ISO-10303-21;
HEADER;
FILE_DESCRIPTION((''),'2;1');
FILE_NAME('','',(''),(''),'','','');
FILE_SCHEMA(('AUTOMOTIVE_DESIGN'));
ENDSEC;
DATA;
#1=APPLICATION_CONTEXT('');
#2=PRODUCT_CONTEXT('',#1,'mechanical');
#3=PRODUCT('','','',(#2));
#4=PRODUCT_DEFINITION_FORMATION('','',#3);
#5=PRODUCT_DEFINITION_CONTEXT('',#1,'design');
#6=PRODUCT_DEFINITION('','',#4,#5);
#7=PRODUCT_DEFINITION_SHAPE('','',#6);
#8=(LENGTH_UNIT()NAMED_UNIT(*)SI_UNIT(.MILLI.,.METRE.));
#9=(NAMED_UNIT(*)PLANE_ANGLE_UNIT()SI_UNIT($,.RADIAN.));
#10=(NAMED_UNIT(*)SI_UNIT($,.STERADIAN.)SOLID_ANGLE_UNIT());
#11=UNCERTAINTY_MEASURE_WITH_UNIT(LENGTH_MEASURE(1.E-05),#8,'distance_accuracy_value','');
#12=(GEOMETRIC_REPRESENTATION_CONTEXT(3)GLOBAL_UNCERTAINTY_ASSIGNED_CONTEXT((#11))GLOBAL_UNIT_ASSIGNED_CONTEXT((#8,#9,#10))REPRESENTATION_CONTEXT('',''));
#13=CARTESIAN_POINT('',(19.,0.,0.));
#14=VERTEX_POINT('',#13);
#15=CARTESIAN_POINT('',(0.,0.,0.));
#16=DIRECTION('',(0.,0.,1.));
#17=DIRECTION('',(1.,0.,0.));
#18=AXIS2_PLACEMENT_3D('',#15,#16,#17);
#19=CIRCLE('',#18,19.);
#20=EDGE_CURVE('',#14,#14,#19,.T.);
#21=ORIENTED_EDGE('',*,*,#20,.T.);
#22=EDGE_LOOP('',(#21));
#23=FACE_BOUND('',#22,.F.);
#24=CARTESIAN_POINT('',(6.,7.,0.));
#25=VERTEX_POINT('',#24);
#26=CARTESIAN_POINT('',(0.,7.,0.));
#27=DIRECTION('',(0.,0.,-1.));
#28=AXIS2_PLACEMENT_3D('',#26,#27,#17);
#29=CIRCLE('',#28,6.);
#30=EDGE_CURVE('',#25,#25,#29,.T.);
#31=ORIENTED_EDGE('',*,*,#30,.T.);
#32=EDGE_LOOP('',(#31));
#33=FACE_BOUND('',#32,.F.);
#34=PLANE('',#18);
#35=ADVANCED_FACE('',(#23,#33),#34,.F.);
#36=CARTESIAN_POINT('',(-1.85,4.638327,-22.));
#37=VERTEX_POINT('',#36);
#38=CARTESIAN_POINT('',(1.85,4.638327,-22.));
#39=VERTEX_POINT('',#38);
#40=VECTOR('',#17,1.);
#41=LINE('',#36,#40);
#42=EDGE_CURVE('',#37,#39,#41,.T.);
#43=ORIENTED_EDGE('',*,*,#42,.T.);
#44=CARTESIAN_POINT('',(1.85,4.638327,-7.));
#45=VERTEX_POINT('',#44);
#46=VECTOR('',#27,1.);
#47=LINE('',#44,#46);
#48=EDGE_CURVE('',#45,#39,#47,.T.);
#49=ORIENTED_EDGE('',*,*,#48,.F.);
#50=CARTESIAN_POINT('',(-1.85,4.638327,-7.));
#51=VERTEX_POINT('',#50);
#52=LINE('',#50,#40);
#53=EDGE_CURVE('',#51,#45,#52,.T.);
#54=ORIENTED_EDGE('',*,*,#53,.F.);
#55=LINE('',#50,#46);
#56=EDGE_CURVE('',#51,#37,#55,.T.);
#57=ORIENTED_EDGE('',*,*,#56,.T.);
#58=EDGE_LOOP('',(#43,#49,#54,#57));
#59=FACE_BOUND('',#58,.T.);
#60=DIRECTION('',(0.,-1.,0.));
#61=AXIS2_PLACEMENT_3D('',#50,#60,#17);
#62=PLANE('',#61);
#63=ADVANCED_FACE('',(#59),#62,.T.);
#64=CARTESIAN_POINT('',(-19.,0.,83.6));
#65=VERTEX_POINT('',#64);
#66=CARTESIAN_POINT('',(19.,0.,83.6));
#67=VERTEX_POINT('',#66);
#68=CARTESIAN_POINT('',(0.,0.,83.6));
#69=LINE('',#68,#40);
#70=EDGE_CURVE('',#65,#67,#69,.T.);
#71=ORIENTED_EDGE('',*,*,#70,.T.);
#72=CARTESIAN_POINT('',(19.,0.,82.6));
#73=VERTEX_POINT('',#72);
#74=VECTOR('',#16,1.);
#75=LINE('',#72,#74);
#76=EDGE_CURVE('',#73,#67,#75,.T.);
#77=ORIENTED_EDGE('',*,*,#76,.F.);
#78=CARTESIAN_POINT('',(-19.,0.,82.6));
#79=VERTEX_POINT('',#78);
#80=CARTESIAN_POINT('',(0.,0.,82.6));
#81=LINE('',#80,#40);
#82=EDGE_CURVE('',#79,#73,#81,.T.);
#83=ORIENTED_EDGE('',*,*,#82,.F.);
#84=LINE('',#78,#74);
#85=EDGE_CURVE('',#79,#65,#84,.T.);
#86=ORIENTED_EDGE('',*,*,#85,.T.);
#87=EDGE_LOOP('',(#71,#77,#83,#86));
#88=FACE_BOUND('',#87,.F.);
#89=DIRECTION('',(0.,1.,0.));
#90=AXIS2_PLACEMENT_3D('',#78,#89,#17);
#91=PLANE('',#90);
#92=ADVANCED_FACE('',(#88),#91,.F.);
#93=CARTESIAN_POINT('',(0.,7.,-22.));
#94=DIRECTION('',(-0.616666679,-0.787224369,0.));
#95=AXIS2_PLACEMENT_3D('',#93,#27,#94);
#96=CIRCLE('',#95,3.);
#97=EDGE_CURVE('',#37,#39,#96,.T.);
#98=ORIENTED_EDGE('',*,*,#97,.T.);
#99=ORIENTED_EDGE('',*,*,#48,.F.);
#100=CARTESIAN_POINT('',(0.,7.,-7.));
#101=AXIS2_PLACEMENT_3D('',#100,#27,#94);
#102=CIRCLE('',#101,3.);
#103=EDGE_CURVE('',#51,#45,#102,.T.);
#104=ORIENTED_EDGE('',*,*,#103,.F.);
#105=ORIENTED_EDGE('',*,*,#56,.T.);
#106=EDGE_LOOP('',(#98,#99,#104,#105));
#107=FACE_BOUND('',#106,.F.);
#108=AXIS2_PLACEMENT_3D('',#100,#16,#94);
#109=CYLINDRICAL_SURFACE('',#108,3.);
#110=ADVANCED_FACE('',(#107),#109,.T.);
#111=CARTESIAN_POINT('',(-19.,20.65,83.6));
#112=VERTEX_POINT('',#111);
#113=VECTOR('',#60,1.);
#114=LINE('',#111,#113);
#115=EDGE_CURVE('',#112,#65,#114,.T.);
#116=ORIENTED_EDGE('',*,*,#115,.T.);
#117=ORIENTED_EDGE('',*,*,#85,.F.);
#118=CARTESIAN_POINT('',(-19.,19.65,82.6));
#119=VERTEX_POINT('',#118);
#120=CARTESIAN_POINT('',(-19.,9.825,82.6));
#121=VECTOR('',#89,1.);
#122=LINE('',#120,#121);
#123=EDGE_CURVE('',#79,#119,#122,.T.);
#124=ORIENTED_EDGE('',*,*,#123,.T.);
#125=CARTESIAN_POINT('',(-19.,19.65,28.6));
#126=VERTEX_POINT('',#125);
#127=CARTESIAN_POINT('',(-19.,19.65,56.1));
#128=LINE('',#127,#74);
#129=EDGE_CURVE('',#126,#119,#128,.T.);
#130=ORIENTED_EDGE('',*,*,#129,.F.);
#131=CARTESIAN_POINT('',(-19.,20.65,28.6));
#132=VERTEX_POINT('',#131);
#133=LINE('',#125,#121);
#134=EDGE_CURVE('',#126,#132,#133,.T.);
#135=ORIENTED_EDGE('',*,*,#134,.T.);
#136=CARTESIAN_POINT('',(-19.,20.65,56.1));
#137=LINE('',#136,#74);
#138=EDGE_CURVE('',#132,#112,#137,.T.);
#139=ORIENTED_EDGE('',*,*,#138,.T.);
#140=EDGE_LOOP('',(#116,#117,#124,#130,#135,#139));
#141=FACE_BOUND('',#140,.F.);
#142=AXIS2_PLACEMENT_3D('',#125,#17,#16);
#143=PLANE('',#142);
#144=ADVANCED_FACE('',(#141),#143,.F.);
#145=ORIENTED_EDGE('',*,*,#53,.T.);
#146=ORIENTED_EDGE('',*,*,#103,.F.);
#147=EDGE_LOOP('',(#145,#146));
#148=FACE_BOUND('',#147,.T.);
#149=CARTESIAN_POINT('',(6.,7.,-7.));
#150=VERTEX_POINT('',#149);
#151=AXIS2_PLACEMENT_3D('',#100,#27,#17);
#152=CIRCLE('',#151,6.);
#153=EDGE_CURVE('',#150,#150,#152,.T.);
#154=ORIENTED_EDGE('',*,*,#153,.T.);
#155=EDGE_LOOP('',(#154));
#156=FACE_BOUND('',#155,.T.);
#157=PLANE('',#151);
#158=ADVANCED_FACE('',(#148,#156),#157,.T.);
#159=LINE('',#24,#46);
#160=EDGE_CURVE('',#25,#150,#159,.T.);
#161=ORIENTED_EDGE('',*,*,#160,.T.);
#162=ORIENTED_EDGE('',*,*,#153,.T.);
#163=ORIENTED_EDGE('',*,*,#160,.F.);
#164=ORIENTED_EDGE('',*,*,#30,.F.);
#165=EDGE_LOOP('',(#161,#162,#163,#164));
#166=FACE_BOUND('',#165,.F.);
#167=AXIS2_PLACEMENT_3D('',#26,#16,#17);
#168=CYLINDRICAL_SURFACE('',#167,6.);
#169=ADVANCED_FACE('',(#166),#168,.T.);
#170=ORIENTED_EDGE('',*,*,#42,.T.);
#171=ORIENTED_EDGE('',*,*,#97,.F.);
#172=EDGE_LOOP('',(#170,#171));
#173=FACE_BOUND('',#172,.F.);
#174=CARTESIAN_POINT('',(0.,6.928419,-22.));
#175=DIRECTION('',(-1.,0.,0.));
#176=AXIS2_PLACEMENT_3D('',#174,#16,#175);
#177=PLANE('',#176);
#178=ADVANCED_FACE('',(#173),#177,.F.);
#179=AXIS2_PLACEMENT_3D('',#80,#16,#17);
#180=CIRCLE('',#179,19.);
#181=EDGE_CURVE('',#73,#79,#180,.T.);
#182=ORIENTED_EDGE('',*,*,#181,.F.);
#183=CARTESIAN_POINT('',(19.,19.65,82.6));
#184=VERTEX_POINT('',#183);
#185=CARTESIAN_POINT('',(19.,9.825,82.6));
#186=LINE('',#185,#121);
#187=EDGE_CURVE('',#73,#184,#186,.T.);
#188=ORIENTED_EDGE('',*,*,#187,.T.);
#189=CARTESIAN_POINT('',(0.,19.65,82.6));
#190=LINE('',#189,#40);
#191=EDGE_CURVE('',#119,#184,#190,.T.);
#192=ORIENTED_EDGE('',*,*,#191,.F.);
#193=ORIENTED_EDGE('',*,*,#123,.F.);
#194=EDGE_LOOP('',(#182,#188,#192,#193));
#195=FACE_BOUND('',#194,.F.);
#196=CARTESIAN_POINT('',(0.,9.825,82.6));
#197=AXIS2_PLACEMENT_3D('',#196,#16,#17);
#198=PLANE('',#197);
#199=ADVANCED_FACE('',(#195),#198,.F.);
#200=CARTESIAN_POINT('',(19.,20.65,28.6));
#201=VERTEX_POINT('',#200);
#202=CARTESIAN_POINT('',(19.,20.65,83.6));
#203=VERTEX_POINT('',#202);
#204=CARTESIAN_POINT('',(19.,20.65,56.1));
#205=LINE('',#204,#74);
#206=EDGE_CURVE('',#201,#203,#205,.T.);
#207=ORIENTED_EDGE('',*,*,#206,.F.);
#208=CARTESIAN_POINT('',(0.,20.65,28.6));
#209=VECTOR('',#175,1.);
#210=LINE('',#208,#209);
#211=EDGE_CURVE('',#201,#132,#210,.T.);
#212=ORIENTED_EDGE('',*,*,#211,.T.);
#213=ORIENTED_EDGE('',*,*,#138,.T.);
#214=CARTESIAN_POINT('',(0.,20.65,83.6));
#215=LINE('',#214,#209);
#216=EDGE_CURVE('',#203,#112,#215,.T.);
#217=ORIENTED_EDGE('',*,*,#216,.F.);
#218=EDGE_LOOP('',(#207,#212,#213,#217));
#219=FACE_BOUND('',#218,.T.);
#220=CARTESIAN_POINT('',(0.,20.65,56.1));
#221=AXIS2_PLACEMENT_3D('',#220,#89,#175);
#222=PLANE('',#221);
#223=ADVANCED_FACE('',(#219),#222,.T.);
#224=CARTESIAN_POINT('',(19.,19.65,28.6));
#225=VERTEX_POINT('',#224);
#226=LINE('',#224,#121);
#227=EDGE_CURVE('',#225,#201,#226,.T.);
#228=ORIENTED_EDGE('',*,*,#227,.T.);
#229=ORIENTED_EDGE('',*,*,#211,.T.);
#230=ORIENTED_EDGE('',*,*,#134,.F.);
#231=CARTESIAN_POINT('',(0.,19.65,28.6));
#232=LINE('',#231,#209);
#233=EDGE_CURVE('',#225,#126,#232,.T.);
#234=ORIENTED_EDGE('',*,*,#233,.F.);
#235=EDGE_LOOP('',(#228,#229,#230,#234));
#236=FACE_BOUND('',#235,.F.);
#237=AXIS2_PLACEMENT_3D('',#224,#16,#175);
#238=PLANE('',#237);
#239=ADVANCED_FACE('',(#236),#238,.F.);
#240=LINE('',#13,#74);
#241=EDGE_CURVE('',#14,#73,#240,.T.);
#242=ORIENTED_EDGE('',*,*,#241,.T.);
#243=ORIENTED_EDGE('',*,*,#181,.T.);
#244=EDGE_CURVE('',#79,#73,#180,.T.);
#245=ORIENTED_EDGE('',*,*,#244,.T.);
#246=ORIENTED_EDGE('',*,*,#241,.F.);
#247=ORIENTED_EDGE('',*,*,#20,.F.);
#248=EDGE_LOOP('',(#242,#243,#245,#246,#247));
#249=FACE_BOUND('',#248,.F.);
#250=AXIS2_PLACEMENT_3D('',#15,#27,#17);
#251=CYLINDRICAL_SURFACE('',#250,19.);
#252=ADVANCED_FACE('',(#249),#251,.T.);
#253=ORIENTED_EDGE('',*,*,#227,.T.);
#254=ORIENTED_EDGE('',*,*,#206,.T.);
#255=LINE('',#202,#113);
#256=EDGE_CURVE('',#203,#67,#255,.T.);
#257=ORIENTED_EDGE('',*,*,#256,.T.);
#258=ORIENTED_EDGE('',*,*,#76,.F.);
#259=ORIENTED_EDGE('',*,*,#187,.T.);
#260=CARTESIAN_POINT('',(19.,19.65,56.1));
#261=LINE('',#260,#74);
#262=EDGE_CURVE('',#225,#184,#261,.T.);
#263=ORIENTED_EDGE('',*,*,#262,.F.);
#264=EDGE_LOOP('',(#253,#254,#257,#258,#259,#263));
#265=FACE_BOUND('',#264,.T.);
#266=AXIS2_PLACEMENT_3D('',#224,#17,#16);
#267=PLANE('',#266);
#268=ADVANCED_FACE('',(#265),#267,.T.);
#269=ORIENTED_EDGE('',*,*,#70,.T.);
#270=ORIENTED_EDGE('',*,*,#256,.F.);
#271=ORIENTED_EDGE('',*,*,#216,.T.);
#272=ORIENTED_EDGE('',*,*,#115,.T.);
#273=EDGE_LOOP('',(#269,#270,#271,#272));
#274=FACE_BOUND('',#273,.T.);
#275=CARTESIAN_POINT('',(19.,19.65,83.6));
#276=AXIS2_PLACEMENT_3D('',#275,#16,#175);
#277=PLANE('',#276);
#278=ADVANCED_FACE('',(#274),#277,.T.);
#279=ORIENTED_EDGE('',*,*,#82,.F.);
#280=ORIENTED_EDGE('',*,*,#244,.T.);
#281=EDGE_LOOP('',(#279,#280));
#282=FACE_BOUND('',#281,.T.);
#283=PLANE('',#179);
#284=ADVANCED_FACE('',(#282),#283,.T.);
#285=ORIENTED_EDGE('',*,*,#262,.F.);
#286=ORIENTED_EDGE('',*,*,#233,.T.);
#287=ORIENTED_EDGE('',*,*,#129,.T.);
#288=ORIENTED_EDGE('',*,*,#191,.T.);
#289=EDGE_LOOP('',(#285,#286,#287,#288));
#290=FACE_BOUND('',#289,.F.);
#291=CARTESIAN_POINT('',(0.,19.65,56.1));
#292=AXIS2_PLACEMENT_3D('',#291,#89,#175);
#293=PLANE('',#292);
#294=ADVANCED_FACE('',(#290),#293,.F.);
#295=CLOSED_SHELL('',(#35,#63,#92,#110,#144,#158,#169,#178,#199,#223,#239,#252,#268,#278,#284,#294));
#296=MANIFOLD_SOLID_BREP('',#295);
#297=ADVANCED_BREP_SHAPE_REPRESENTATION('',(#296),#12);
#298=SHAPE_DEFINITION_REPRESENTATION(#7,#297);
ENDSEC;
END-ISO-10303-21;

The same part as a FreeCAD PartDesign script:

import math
import FreeCAD as App
import Part
import Sketcher
from FreeCAD import Vector
Q = App.Units.Quantity


def add_polygon(sketch, points):
    """Adds a closed chain of lines whose ends are joined by coincident constraints."""
    first, n = sketch.GeometryCount, len(points)
    for a, b in zip(points, points[1:] + points[:1]):
        sketch.addGeometry(Part.LineSegment(App.Vector(*a, 0), App.Vector(*b, 0)), False)
    for i in range(n):
        sketch.addConstraint(Sketcher.Constraint("Coincident", first + i, 2, first + (i + 1) % n, 1))

doc = App.newDocument("Part")
body = doc.addObject("PartDesign::Body", "Body")

# Sketch on XY plane
sketch1 = body.newObject("Sketcher::SketchObject", "Sketch")
sketch1.AttachmentSupport = (doc.getObject("XY_Plane"), [""])
sketch1.MapMode = "FlatFace"
sketch1.addGeometry(Part.Circle(Vector(0, 0, 0), Vector(0, 0, 1), 19), False)
sketch1.addConstraint([
    Sketcher.Constraint("Coincident", 0, 3, -1, 1),
    Sketcher.Constraint("Diameter", 0, Q("38 mm")),
])
pad1 = body.newObject("PartDesign::Pad", "Pad")
pad1.Profile = sketch1
pad1.Length = 82.6

# Sketch on XY plane
sketch2 = body.newObject("Sketcher::SketchObject", "Sketch001")
sketch2.AttachmentSupport = (doc.getObject("XY_Plane"), [""])
sketch2.MapMode = "FlatFace"
sketch2.addGeometry(Part.Circle(Vector(0, 7, 0), Vector(0, 0, 1), 6), False)
sketch2.addConstraint([
    Sketcher.Constraint("PointOnObject", 0, 3, -2),
    Sketcher.Constraint("Diameter", 0, Q("12 mm")),
    Sketcher.Constraint("DistanceY", -1, 1, 0, 3, Q("7 mm")),
])
pad2 = body.newObject("PartDesign::Pad", "Pad001")
pad2.Profile = sketch2
pad2.Length = 7
pad2.Reversed = True

# Sketch on XY plane
sketch3 = body.newObject("Sketcher::SketchObject", "Sketch002")
sketch3.AttachmentSupport = (doc.getObject("XY_Plane"), [""])
sketch3.MapMode = "FlatFace"
sketch3.AttachmentOffset = App.Placement(Vector(0, 0, -7), App.Rotation())
sketch3.addGeometry([
    Part.LineSegment(Vector(1.85, 4.638327, 0), Vector(-1.85, 4.638327, 0)),
    Part.ArcOfCircle(Part.Circle(Vector(0, 7, 0), Vector(0, 0, 1), 3), math.radians(-51.926876), math.radians(231.926876)),
], False)
sketch3.addConstraint([
    Sketcher.Constraint("Coincident", 0, 1, 1, 1),
    Sketcher.Constraint("Coincident", 1, 2, 0, 2),
    Sketcher.Constraint("Horizontal", 0),
    Sketcher.Constraint("PointOnObject", 1, 3, -2),
    Sketcher.Constraint("Radius", 1, Q("3 mm")),
    Sketcher.Constraint("DistanceX", 0, 2, 0, 1, Q("3.7 mm")),
    Sketcher.Constraint("DistanceY", -1, 1, 1, 3, Q("7 mm")),
])
pad3 = body.newObject("PartDesign::Pad", "Pad002")
pad3.Profile = sketch3
pad3.Length = 15
pad3.Reversed = True

# Sketch on XY plane
sketch4 = body.newObject("Sketcher::SketchObject", "Sketch003")
sketch4.AttachmentSupport = (doc.getObject("XY_Plane"), [""])
sketch4.MapMode = "FlatFace"
sketch4.AttachmentOffset = App.Placement(Vector(0, 0, 82.6), App.Rotation())
add_polygon(sketch4, [(-19, 19.65), (-19, 0), (19, 0), (19, 19.65)])  # lines 0-3
sketch4.addConstraint([
    Sketcher.Constraint("Vertical", 0),
    Sketcher.Constraint("Horizontal", 1),
    Sketcher.Constraint("Vertical", 2),
    Sketcher.Constraint("Horizontal", 3),
    Sketcher.Constraint("Symmetric", 0, 2, 1, 2, -1, 1),
    Sketcher.Constraint("DistanceX", 1, 1, 1, 2, Q("38 mm")),
    Sketcher.Constraint("DistanceY", 0, 2, 0, 1, Q("19.65 mm")),
])
pad4 = body.newObject("PartDesign::Pad", "Pad003")
pad4.Profile = sketch4
pad4.Length = 1

# Sketch on XZ plane
sketch5 = body.newObject("Sketcher::SketchObject", "Sketch004")
sketch5.AttachmentSupport = (doc.getObject("XZ_Plane"), [""])
sketch5.MapMode = "FlatFace"
sketch5.AttachmentOffset = App.Placement(Vector(0, 0, -19.65), App.Rotation())
add_polygon(sketch5, [(19, 83.6), (19, 28.6), (-19, 28.6), (-19, 83.6)])  # lines 0-3
sketch5.addConstraint([
    Sketcher.Constraint("Vertical", 0),
    Sketcher.Constraint("Horizontal", 1),
    Sketcher.Constraint("Vertical", 2),
    Sketcher.Constraint("Horizontal", 3),
    Sketcher.Constraint("DistanceX", 1, 2, 1, 1, Q("38 mm")),
    Sketcher.Constraint("DistanceY", 0, 2, 0, 1, Q("55 mm")),
    Sketcher.Constraint("DistanceX", -1, 1, 0, 2, Q("19 mm")),
    Sketcher.Constraint("DistanceY", -1, 1, 0, 2, Q("28.6 mm")),
])
pad5 = body.newObject("PartDesign::Pad", "Pad004")
pad5.Profile = sketch5
pad5.Length = 1
pad5.Reversed = True

doc.recompute()
